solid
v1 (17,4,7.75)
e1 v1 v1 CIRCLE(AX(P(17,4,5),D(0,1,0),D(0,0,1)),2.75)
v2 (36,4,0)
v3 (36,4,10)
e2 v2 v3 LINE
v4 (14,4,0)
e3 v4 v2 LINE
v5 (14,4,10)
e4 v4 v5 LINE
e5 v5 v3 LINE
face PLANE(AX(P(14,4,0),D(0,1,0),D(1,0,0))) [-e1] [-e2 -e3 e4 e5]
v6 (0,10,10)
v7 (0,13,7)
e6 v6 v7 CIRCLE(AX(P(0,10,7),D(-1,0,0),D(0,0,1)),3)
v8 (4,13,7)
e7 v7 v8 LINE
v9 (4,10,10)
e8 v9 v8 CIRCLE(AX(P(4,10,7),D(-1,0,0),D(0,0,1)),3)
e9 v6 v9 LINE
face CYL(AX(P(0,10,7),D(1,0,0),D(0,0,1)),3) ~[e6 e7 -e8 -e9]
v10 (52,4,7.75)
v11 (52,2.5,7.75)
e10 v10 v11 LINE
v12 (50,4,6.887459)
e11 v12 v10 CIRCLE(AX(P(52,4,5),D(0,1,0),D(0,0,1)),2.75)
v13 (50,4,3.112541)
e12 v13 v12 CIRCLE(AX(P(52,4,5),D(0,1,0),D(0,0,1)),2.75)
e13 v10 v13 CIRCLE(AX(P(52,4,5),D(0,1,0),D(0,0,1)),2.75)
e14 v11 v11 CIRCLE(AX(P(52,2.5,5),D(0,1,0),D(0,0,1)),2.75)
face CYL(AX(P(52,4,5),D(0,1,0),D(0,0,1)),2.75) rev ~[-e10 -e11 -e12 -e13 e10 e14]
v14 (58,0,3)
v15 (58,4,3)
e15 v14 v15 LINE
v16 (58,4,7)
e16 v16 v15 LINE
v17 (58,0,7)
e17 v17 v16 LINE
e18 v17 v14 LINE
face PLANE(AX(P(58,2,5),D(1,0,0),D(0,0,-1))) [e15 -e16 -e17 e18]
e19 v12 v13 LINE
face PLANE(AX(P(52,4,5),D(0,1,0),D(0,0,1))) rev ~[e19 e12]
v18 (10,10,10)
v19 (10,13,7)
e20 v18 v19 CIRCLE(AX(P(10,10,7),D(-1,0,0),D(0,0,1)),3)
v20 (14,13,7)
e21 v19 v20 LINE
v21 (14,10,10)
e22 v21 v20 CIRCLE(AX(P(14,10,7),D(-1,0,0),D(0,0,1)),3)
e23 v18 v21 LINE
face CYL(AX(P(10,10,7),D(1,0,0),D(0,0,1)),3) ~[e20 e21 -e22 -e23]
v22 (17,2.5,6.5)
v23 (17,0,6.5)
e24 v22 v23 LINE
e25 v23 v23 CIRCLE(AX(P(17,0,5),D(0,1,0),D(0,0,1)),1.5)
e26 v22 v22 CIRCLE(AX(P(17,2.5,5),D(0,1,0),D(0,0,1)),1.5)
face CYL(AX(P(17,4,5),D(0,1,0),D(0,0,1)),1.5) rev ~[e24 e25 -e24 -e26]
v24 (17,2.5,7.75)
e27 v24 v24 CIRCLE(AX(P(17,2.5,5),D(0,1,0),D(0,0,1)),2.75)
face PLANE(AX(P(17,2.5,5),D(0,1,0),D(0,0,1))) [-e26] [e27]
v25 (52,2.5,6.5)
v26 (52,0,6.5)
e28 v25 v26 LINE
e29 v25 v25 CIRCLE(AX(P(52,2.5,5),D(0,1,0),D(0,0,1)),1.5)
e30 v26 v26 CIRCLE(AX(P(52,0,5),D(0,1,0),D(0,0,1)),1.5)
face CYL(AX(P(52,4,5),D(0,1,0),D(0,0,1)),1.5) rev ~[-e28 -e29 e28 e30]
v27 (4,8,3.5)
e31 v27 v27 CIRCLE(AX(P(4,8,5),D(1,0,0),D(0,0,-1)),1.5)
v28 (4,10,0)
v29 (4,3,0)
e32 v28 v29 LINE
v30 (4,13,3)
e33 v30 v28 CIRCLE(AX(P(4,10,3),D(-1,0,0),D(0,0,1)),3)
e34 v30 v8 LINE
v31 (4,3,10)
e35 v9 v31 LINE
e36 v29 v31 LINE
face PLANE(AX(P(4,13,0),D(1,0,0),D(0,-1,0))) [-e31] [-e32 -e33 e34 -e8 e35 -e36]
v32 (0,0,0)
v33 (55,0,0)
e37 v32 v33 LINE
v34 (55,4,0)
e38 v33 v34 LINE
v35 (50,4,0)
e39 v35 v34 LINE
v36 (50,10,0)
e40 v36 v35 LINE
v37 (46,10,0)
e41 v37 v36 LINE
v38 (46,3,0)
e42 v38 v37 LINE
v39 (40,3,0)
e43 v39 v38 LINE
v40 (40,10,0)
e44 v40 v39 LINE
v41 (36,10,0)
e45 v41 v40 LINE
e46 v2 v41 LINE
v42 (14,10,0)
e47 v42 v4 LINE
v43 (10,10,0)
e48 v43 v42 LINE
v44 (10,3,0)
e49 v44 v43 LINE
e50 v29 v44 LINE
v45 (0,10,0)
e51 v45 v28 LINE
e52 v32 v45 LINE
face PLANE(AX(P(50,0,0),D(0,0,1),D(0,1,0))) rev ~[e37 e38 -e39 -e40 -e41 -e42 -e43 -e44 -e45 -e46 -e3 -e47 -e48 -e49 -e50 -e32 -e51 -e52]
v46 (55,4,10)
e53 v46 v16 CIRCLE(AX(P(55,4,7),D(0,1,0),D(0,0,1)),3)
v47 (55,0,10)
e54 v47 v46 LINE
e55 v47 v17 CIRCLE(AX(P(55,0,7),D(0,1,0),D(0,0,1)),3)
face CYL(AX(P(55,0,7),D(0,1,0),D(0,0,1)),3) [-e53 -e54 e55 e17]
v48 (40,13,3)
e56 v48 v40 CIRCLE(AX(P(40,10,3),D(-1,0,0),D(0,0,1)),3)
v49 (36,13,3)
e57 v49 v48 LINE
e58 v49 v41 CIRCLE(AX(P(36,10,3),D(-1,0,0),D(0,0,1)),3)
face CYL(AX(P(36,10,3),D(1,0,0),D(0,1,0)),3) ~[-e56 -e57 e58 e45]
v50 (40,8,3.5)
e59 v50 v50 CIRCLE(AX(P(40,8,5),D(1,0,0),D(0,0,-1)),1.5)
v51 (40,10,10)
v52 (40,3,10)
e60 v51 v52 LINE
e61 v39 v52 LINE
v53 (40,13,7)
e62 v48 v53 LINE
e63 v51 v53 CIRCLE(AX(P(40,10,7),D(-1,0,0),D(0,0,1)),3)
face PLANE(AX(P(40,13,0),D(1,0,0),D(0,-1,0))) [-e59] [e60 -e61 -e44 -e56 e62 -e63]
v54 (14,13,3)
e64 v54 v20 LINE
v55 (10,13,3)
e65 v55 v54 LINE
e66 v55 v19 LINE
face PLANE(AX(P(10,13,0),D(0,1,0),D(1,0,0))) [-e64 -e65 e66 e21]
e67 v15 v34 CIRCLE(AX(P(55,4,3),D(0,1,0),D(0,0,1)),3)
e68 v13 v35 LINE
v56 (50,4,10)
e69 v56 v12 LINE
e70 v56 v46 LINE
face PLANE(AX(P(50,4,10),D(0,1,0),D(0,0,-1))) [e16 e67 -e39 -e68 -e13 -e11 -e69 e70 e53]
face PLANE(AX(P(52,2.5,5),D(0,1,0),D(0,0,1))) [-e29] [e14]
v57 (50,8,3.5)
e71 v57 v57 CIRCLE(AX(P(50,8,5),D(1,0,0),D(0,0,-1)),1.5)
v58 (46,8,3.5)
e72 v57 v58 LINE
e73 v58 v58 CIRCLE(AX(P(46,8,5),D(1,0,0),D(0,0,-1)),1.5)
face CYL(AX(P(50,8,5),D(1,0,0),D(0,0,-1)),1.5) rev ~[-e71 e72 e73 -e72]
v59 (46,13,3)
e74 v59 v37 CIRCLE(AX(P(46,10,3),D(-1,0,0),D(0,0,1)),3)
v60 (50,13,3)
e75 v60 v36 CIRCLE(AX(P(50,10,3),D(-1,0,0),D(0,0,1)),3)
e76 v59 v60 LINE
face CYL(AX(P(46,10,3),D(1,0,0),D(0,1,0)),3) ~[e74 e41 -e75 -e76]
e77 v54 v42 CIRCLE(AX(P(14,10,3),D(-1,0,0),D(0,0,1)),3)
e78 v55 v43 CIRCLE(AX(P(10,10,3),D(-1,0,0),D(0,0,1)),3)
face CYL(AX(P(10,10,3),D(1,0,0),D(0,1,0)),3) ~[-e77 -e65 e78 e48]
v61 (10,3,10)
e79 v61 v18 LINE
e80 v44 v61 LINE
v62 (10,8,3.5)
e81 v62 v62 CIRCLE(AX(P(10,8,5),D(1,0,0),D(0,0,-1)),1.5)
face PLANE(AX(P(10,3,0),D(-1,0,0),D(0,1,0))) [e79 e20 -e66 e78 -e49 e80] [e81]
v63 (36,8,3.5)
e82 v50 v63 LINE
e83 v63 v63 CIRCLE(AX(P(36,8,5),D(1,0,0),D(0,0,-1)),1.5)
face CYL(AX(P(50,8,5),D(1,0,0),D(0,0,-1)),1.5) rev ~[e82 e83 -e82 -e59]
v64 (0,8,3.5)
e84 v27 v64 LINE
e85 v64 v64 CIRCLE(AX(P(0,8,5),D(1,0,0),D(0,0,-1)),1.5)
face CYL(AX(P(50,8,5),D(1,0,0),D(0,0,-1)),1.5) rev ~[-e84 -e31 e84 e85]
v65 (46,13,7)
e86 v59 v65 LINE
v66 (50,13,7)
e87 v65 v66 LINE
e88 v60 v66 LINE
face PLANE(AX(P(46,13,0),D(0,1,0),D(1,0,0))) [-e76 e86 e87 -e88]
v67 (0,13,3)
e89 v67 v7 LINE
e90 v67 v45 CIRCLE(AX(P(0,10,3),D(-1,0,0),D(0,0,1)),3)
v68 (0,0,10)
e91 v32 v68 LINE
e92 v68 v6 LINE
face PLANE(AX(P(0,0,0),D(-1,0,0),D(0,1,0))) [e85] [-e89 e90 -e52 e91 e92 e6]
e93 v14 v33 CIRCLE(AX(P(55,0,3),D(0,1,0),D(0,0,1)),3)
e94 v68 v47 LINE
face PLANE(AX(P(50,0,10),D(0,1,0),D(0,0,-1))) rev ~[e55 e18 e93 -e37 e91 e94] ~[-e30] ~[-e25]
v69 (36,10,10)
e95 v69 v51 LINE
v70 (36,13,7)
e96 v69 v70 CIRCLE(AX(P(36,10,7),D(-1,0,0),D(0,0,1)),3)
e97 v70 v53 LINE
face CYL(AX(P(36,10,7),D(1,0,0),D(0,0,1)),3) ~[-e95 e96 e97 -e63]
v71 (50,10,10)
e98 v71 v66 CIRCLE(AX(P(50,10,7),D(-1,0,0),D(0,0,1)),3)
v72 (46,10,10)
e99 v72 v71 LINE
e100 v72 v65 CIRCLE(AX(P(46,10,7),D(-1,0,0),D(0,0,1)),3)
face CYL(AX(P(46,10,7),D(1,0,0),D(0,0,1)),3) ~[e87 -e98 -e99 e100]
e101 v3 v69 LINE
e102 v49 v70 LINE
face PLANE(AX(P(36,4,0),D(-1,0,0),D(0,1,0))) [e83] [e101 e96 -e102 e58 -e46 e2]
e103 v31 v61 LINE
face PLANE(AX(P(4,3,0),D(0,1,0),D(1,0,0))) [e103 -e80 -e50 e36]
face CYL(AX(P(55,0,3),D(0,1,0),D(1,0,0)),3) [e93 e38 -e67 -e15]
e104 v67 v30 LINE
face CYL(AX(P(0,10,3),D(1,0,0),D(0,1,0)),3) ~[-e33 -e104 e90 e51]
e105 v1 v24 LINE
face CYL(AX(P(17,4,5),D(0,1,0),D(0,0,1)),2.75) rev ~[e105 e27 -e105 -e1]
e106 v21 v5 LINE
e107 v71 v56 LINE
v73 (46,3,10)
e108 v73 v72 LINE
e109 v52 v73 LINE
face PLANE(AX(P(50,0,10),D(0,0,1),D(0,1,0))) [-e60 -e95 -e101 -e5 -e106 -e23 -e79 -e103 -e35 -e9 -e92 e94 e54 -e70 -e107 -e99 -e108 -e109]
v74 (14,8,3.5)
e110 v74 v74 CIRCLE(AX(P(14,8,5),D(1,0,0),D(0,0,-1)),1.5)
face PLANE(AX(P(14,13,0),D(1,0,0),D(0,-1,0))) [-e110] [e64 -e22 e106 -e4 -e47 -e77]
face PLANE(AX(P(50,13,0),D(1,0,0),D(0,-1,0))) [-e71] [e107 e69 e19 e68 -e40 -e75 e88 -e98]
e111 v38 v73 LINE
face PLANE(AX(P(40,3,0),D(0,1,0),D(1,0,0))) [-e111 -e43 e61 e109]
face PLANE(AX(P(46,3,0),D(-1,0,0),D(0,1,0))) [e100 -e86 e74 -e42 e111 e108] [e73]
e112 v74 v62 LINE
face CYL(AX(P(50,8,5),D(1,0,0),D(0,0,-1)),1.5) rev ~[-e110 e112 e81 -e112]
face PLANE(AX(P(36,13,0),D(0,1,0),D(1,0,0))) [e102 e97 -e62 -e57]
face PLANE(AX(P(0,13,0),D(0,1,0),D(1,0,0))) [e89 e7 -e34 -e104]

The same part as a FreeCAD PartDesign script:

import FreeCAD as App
import Part
import Sketcher
Q = App.Units.Quantity


def edges_at(feature, points):
    """Names of the edges that pass closest to the given points."""
    edges = feature.Shape.Edges
    near = lambda p: min(range(len(edges)), key=lambda i: edges[i].distToShape(Part.Vertex(*p))[0])
    return sorted({f"Edge{near(p) + 1}" for p in points})


def add_polygon(sketch, points):
    """Adds a closed chain of lines whose ends are joined by coincident constraints."""
    first, n = sketch.GeometryCount, len(points)
    for a, b in zip(points, points[1:] + points[:1]):
        sketch.addGeometry(Part.LineSegment(App.Vector(*a, 0), App.Vector(*b, 0)), False)
    for i in range(n):
        sketch.addConstraint(Sketcher.Constraint("Coincident", first + i, 2, first + (i + 1) % n, 1))

doc = App.newDocument("Part")
params = doc.addObject("Spreadsheet::Sheet", "Params")
for row, (alias, value) in enumerate([
    ("sketch1_width", "50 mm"),
    ("sketch1_width2", "4 mm"),
    ("sketch1_width3", "6 mm"),
    ("sketch1_height", "13 mm"),
    ("sketch1_height2", "10 mm"),
    ("pad1_length", "10 mm"),
    ("sketch2_width", "4 mm"),
    ("sketch2_height", "10 mm"),
    ("pad2_length", "8 mm"),
    ("sketch3_diameter", "3 mm"),
    ("pocket1_length", "5 mm"),
    ("sketch4_diameter", "5.5 mm"),
    ("pocket2_length", "1.5 mm"),
    ("fillet_radius", "3 mm"),
    ("sketch5_diameter", "3 mm"),
    ("fillet2_radius", "3 mm"),
], start=1):
    params.set(f"A{row}", alias)
    params.set(f"B{row}", "=" + value)
    params.setAlias(f"B{row}", alias)

body = doc.addObject("PartDesign::Body", "Body")

# Sketch on XY plane
sketch1 = body.newObject("Sketcher::SketchObject", "Sketch")
sketch1.AttachmentSupport = (doc.getObject("XY_Plane"), [""])
sketch1.MapMode = "FlatFace"
add_polygon(sketch1, [(0, 13), (0, 0), (50, 0), (50, 13), (46, 13), (46, 3), (40, 3), (40, 13), (36, 13), (36, 4), (14, 4), (14, 13), (10, 13), (10, 3), (4, 3), (4, 13)])  # lines 0-15
sketch1.addConstraint(Sketcher.Constraint("Vertical", 0))
sketch1.addConstraint(Sketcher.Constraint("Horizontal", 1))
sketch1.addConstraint(Sketcher.Constraint("Vertical", 2))
sketch1.addConstraint(Sketcher.Constraint("Horizontal", 3))
sketch1.addConstraint(Sketcher.Constraint("Vertical", 4))
sketch1.addConstraint(Sketcher.Constraint("Horizontal", 5))
sketch1.addConstraint(Sketcher.Constraint("Vertical", 6))
sketch1.addConstraint(Sketcher.Constraint("Horizontal", 7))
sketch1.addConstraint(Sketcher.Constraint("Vertical", 8))
sketch1.addConstraint(Sketcher.Constraint("Horizontal", 9))
sketch1.addConstraint(Sketcher.Constraint("Vertical", 10))
sketch1.addConstraint(Sketcher.Constraint("Horizontal", 11))
sketch1.addConstraint(Sketcher.Constraint("Vertical", 12))
sketch1.addConstraint(Sketcher.Constraint("Horizontal", 13))
sketch1.addConstraint(Sketcher.Constraint("Vertical", 14))
sketch1.addConstraint(Sketcher.Constraint("Horizontal", 15))
sketch1.addConstraint(Sketcher.Constraint("Coincident", 0, 2, -1, 1))
sketch1.addConstraint(Sketcher.Constraint("Horizontal", 3, 2, 6, 2))
sketch1.addConstraint(Sketcher.Constraint("Horizontal", 7, 2, 10, 2))
sketch1.addConstraint(Sketcher.Constraint("Horizontal", 5, 2, 12, 2))
sketch1.addConstraint(Sketcher.Constraint("Horizontal", 11, 2, 14, 2))
sketch1.addConstraint(Sketcher.Constraint("Equal", 3, 7))
sketch1.addConstraint(Sketcher.Constraint("Equal", 7, 11))
sketch1.addConstraint(Sketcher.Constraint("Equal", 5, 13))
sketch1.addConstraint(Sketcher.Constraint("Equal", 11, 15))
sketch1.addConstraint(Sketcher.Constraint("DistanceX", 1, 1, 1, 2, Q("50 mm")))
sketch1.addConstraint(Sketcher.Constraint("DistanceX", 3, 2, 3, 1, Q("4 mm")))
sketch1.addConstraint(Sketcher.Constraint("DistanceX", 5, 2, 5, 1, Q("6 mm")))
sketch1.addConstraint(Sketcher.Constraint("DistanceY", 0, 2, 0, 1, Q("13 mm")))
sketch1.addConstraint(Sketcher.Constraint("DistanceY", 4, 2, 4, 1, Q("10 mm")))
sketch1.addConstraint(Sketcher.Constraint("DistanceY", 8, 2, 8, 1, Q("9 mm")))
sketch1.setExpression("Constraints[41]", "Params.sketch1_width")
sketch1.setExpression("Constraints[42]", "Params.sketch1_width2")
sketch1.setExpression("Constraints[43]", "Params.sketch1_width3")
sketch1.setExpression("Constraints[44]", "Params.sketch1_height")
sketch1.setExpression("Constraints[45]", "Params.sketch1_height2")
pad1 = body.newObject("PartDesign::Pad", "Pad")
pad1.Profile = sketch1
pad1.setExpression("Length", "Params.pad1_length")

# Sketch on YZ plane
sketch2 = body.newObject("Sketcher::SketchObject", "Sketch001")
sketch2.AttachmentSupport = (doc.getObject("YZ_Plane"), [""])
sketch2.MapMode = "FlatFace"
sketch2.AttachmentOffset = App.Placement(App.Vector(0, 0, 50), App.Rotation())
add_polygon(sketch2, [(4, 10), (0, 10), (0, 0), (4, 0)])  # lines 0-3
sketch2.addConstraint(Sketcher.Constraint("Horizontal", 0))
sketch2.addConstraint(Sketcher.Constraint("Vertical", 1))
sketch2.addConstraint(Sketcher.Constraint("Horizontal", 2))
sketch2.addConstraint(Sketcher.Constraint("Vertical", 3))
sketch2.addConstraint(Sketcher.Constraint("Coincident", 1, 2, -1, 1))
sketch2.addConstraint(Sketcher.Constraint("DistanceX", 0, 2, 0, 1, Q("4 mm")))
sketch2.addConstraint(Sketcher.Constraint("DistanceY", 1, 2, 1, 1, Q("10 mm")))
sketch2.setExpression("Constraints[9]", "Params.sketch2_width")
sketch2.setExpression("Constraints[10]", "Params.sketch2_height")
pad2 = body.newObject("PartDesign::Pad", "Pad001")
pad2.Profile = sketch2
pad2.setExpression("Length", "Params.pad2_length")

# Sketch on XZ plane
sketch3 = body.newObject("Sketcher::SketchObject", "Sketch002")
sketch3.AttachmentSupport = (doc.getObject("XZ_Plane"), [""])
sketch3.MapMode = "FlatFace"
sketch3.AttachmentOffset = App.Placement(App.Vector(0, 0, -4), App.Rotation())
sketch3.addGeometry(Part.Circle(App.Vector(17, 5, 0), App.Vector(0, 0, 1), 1.5), False)
sketch3.addGeometry(Part.Circle(App.Vector(52, 5, 0), App.Vector(0, 0, 1), 1.5), False)
sketch3.addConstraint(Sketcher.Constraint("Equal", 0, 1))
sketch3.addConstraint(Sketcher.Constraint("Horizontal", 0, 3, 1, 3))
sketch3.addConstraint(Sketcher.Constraint("Diameter", 0, Q("3 mm")))
sketch3.addConstraint(Sketcher.Constraint("DistanceX", -1, 1, 0, 3, Q("17 mm")))
sketch3.addConstraint(Sketcher.Constraint("DistanceY", -1, 1, 0, 3, Q("5 mm")))
sketch3.addConstraint(Sketcher.Constraint("DistanceX", -1, 1, 1, 3, Q("52 mm")))
sketch3.setExpression("Constraints[2]", "Params.sketch3_diameter")
pocket1 = body.newObject("PartDesign::Pocket", "Pocket")
pocket1.Profile = sketch3
pocket1.setExpression("Length", "Params.pocket1_length")
pocket1.Reversed = True

# Sketch on XZ plane
sketch4 = body.newObject("Sketcher::SketchObject", "Sketch003")
sketch4.AttachmentSupport = (doc.getObject("XZ_Plane"), [""])
sketch4.MapMode = "FlatFace"
sketch4.AttachmentOffset = App.Placement(App.Vector(0, 0, -4), App.Rotation())
sketch4.addGeometry(Part.Circle(App.Vector(17, 5, 0), App.Vector(0, 0, 1), 2.75), False)
sketch4.addGeometry(Part.Circle(App.Vector(52, 5, 0), App.Vector(0, 0, 1), 2.75), False)
sketch4.addConstraint(Sketcher.Constraint("Equal", 0, 1))
sketch4.addConstraint(Sketcher.Constraint("Horizontal", 0, 3, 1, 3))
sketch4.addConstraint(Sketcher.Constraint("Diameter", 0, Q("5.5 mm")))
sketch4.addConstraint(Sketcher.Constraint("DistanceX", -1, 1, 0, 3, Q("17 mm")))
sketch4.addConstraint(Sketcher.Constraint("DistanceY", -1, 1, 0, 3, Q("5 mm")))
sketch4.addConstraint(Sketcher.Constraint("DistanceX", -1, 1, 1, 3, Q("52 mm")))
sketch4.setExpression("Constraints[2]", "Params.sketch4_diameter")
pocket2 = body.newObject("PartDesign::Pocket", "Pocket001")
pocket2.Profile = sketch4
pocket2.setExpression("Length", "Params.pocket2_length")
pocket2.Reversed = True
doc.recompute()

fillet = body.newObject("PartDesign::Fillet", "Fillet")
fillet.Base = (pocket2, edges_at(pocket2, [
    (48, 13, 10),
    (2, 13, 0),
    (12, 13, 0),
    (38, 13, 0),
    (48, 13, 0),
    (38, 13, 10),
    (12, 13, 10),
    (2, 13, 10),
]))
fillet.setExpression("Radius", "Params.fillet_radius")

# Sketch on YZ plane
sketch5 = body.newObject("Sketcher::SketchObject", "Sketch004")
sketch5.AttachmentSupport = (doc.getObject("YZ_Plane"), [""])
sketch5.MapMode = "FlatFace"
sketch5.AttachmentOffset = App.Placement(App.Vector(0, 0, 50), App.Rotation())
sketch5.addGeometry(Part.Circle(App.Vector(8, 5, 0), App.Vector(0, 0, 1), 1.5), False)
sketch5.addConstraint(Sketcher.Constraint("Diameter", 0, Q("3 mm")))
sketch5.addConstraint(Sketcher.Constraint("DistanceX", -1, 1, 0, 3, Q("8 mm")))
sketch5.addConstraint(Sketcher.Constraint("DistanceY", -1, 1, 0, 3, Q("5 mm")))
sketch5.setExpression("Constraints[0]", "Params.sketch5_diameter")
pocket3 = body.newObject("PartDesign::Pocket", "Pocket002")
pocket3.Profile = sketch5
pocket3.Type = "ThroughAll"
doc.recompute()

fillet2 = body.newObject("PartDesign::Fillet", "Fillet001")
fillet2.Base = (pocket3, edges_at(pocket3, [(58, 2, 10), (58, 2, 0)]))
fillet2.setExpression("Radius", "Params.fillet2_radius")

doc.recompute()
